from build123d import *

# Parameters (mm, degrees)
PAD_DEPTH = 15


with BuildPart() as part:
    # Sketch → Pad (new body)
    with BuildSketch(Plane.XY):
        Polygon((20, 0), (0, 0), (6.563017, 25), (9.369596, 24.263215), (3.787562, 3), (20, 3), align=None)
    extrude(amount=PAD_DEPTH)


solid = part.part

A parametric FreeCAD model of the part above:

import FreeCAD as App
import Part
import Sketcher
from FreeCAD import Vector

doc = App.newDocument("Part")
params = doc.addObject("Spreadsheet::Sheet", "Params")
for row, (alias, value) in enumerate([
    ("sketch1_width", "20 mm"),
    ("sketch1_height", "3 mm"),
    ("pad1_length", "15 mm"),
], start=1):
    params.set(f"A{row}", alias)
    params.set(f"B{row}", "=" + value)
    params.setAlias(f"B{row}", alias)

body = doc.addObject("PartDesign::Body", "Body")

sketch1 = body.newObject("Sketcher::SketchObject", "Sketch")
sketch1.AttachmentSupport = (doc.getObject("XY_Plane"), [""])
sketch1.MapMode = "FlatFace"
sketch1.addGeometry(Part.LineSegment(Vector(0, 0, 0), Vector(20, 0, 0)), False)
sketch1.addGeometry(Part.LineSegment(Vector(20, 0, 0), Vector(20, 3, 0)), False)
sketch1.addGeometry(Part.LineSegment(Vector(20, 3, 0), Vector(3.8, 3, 0)), False)
sketch1.addGeometry(Part.LineSegment(Vector(3.8, 3, 0), Vector(9.4, 24.3, 0)), False)
sketch1.addGeometry(Part.LineSegment(Vector(9.4, 24.3, 0), Vector(6.6, 25, 0)), False)
sketch1.addGeometry(Part.LineSegment(Vector(6.6, 25, 0), Vector(0, 0, 0)), False)
sketch1.addConstraint(Sketcher.Constraint("Coincident", 0, 2, 1, 1))
sketch1.addConstraint(Sketcher.Constraint("Coincident", 1, 2, 2, 1))
sketch1.addConstraint(Sketcher.Constraint("Coincident", 2, 2, 3, 1))
sketch1.addConstraint(Sketcher.Constraint("Coincident", 3, 2, 4, 1))
sketch1.addConstraint(Sketcher.Constraint("Coincident", 4, 2, 5, 1))
sketch1.addConstraint(Sketcher.Constraint("Coincident", 5, 2, 0, 1))
sketch1.addConstraint(Sketcher.Constraint("Horizontal", 0))
sketch1.addConstraint(Sketcher.Constraint("Vertical", 1))
sketch1.addConstraint(Sketcher.Constraint("Horizontal", 2))
sketch1.addConstraint(Sketcher.Constraint("Coincident", 5, 2, -1, 1))
sketch1.addConstraint(Sketcher.Constraint("Perpendicular", 3, 4))
sketch1.addConstraint(Sketcher.Constraint("Perpendicular", 4, 5))
sketch1.addConstraint(Sketcher.Constraint("DistanceX", 0, 1, 0, 2, 20.0))
sketch1.addConstraint(Sketcher.Constraint("DistanceY", 1, 1, 1, 2, 3.0))
sketch1.addConstraint(Sketcher.Constraint("DistanceY", -1, 1, 4, 2, 25.0))
sketch1.addConstraint(Sketcher.Constraint("Distance", 4, 2.901678))
sketch1.addConstraint(Sketcher.Constraint("Distance", 5, 25.847112))
sketch1.setExpression("Constraints[12]", "Params.sketch1_width")
sketch1.setExpression("Constraints[13]", "Params.sketch1_height")
pad1 = body.newObject("PartDesign::Pad", "Pad")
pad1.Profile = sketch1
pad1.setExpression("Length", "Params.pad1_length")

doc.recompute()
